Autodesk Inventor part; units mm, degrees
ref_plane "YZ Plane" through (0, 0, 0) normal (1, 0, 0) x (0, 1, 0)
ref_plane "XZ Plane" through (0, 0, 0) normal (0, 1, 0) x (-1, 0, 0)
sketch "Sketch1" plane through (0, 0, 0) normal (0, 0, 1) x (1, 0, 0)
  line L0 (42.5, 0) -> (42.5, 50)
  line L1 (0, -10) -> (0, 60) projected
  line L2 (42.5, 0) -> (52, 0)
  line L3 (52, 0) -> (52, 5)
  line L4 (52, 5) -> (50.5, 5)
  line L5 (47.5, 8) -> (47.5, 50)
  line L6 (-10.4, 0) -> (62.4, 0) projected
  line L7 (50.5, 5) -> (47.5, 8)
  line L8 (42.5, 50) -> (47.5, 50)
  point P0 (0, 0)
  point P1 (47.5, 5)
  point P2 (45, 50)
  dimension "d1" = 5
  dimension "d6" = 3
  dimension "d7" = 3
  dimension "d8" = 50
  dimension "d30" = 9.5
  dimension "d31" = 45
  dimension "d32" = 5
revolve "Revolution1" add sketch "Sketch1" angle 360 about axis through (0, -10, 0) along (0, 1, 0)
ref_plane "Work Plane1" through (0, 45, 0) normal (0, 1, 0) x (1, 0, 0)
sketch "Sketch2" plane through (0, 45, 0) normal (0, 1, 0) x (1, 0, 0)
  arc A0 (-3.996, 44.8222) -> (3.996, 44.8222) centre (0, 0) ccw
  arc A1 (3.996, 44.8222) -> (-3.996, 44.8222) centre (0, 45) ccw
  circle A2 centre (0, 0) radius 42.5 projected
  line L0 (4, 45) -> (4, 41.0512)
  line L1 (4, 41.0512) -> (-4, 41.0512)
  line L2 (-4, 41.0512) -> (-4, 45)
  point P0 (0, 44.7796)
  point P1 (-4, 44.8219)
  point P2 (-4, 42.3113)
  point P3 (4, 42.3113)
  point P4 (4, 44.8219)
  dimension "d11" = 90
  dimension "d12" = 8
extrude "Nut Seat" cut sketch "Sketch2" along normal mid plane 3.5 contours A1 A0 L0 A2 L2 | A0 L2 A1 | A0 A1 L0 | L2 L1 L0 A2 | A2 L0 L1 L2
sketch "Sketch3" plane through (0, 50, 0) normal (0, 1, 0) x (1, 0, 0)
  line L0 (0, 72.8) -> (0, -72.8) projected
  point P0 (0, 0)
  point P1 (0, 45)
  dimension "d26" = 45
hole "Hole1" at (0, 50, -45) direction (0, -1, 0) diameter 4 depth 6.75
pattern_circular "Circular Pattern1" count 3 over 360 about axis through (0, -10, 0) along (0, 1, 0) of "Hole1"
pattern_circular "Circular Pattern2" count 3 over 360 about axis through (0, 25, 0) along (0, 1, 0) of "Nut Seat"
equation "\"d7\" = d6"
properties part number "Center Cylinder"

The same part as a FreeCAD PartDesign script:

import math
import FreeCAD as App
import Part
import Sketcher

V = App.Vector
Q = App.Units.Quantity


def add_polygon(sketch, points):
    """Adds a closed chain of lines whose ends are joined by coincident constraints."""
    first, n = sketch.GeometryCount, len(points)
    for a, b in zip(points, points[1:] + points[:1]):
        sketch.addGeometry(Part.LineSegment(App.Vector(*a, 0), App.Vector(*b, 0)), False)
    for i in range(n):
        sketch.addConstraint(Sketcher.Constraint("Coincident", first + i, 2, first + (i + 1) % n, 1))

doc = App.newDocument("Part")
body = doc.addObject("PartDesign::Body", "Body")

sketch1 = body.newObject("Sketcher::SketchObject", "Sketch")
sketch1.AttachmentSupport = (doc.getObject("XY_Plane"), [""])
sketch1.MapMode = "FlatFace"
add_polygon(sketch1, [(42.5, 50), (42.5, 0), (52, 0), (52, 5), (50.5, 5), (47.5, 8), (47.5, 50)])
sketch1.addConstraint([
    Sketcher.Constraint("Vertical", 0),
    Sketcher.Constraint("Horizontal", 1),
    Sketcher.Constraint("Vertical", 2),
    Sketcher.Constraint("Horizontal", 3),
    Sketcher.Constraint("Vertical", 5),
    Sketcher.Constraint("Horizontal", 6),
    Sketcher.Constraint("PointOnObject", 0, 2, -1),
    Sketcher.Constraint("Equal", 6, 2),
    Sketcher.Constraint("DistanceX", 6, 2, 6, 1, Q("5 mm")),
    Sketcher.Constraint("DistanceY", 0, 2, 0, 1, Q("50 mm")),
    Sketcher.Constraint("DistanceX", 1, 1, 1, 2, Q("9.5 mm")),
    Sketcher.Constraint("DistanceX", 4, 2, 3, 2, Q("3 mm")),
    Sketcher.Constraint("DistanceY", 3, 2, 4, 2, Q("3 mm")),
    Sketcher.Constraint("DistanceX", -1, 1, 1, 2, Q("52 mm")),
])
revolution = body.newObject("PartDesign::Revolution", "Revolution")
revolution.Profile = sketch1
revolution.ReferenceAxis = (sketch1, ["V_Axis"])
revolution.Angle = 360

sketch2 = body.newObject("Sketcher::SketchObject", "Sketch001")
sketch2.AttachmentSupport = (doc.getObject("XZ_Plane"), [""])
sketch2.MapMode = "FlatFace"
sketch2.AttachmentOffset = App.Placement(V(0, 0, -45), App.Rotation())
sketch2.addGeometry([
    Part.ArcOfCircle(Part.Circle(V(0, -45, 0), V(0, 0, 1), 4), math.radians(180), math.radians(360)),
    Part.LineSegment(V(-4, -45, 0), V(-4, -42.3, 0)),
    Part.ArcOfCircle(Part.Circle(V(0, 0, 0), V(0, 0, 1), 42.5), math.radians(-85), math.radians(265)),
    Part.LineSegment(V(4, -42.3, 0), V(4, -45, 0)),
], False)
sketch2.addConstraint([
    Sketcher.Constraint("Tangent", 0, 1, 1, 1),
    Sketcher.Constraint("Coincident", 1, 2, 2, 2),
    Sketcher.Constraint("Coincident", 2, 1, 3, 1),
    Sketcher.Constraint("Tangent", 3, 2, 0, 2),
    Sketcher.Constraint("Vertical", 1),
    Sketcher.Constraint("Vertical", 3),
    Sketcher.Constraint("Coincident", 2, 3, -1, 1),
    Sketcher.Constraint("PointOnObject", 0, 3, -2),
    Sketcher.Constraint("Radius", 0, Q("4 mm")),
    Sketcher.Constraint("Radius", 2, Q("42.5 mm")),
    Sketcher.Constraint("DistanceY", 0, 3, -1, 1, Q("45 mm")),
])
pocket1 = body.newObject("PartDesign::Pocket", "Pocket")
pocket1.Profile = sketch2
pocket1.Length = 3.5
pocket1.Midplane = True

sketch3 = body.newObject("Sketcher::SketchObject", "Sketch002")
sketch3.AttachmentSupport = (doc.getObject("XZ_Plane"), [""])
sketch3.MapMode = "FlatFace"
sketch3.AttachmentOffset = App.Placement(V(0, 0, -50), App.Rotation())
sketch3.addGeometry(Part.Circle(V(0, -45, 0), V(0, 0, 1), 2), False)
sketch3.addConstraint([
    Sketcher.Constraint("PointOnObject", 0, 3, -2),
    Sketcher.Constraint("Diameter", 0, Q("4 mm")),
    Sketcher.Constraint("DistanceY", 0, 3, -1, 1, Q("45 mm")),
])
doc.recompute()
hole = body.newObject("PartDesign::Hole", "Hole")
hole.Profile = sketch3
hole.ThreadType = "None"
hole.Diameter = 4
hole.DepthType = "Dimension"
hole.Depth = 6.75
hole.DrillPoint = "Flat"
hole.Reversed = True
doc.recompute()

polarpattern = body.newObject("PartDesign::PolarPattern", "PolarPattern")
polarpattern.Originals = [hole]
polarpattern.Axis = (doc.getObject("Y_Axis"), [""])
polarpattern.Angle = 360
polarpattern.Occurrences = 3
body.Tip = polarpattern
doc.recompute()

polarpattern2 = body.newObject("PartDesign::PolarPattern", "PolarPattern001")
polarpattern2.Originals = [pocket1]
polarpattern2.Axis = (doc.getObject("Y_Axis"), [""])
polarpattern2.Angle = 360
polarpattern2.Occurrences = 3
body.Tip = polarpattern2

doc.recompute()
